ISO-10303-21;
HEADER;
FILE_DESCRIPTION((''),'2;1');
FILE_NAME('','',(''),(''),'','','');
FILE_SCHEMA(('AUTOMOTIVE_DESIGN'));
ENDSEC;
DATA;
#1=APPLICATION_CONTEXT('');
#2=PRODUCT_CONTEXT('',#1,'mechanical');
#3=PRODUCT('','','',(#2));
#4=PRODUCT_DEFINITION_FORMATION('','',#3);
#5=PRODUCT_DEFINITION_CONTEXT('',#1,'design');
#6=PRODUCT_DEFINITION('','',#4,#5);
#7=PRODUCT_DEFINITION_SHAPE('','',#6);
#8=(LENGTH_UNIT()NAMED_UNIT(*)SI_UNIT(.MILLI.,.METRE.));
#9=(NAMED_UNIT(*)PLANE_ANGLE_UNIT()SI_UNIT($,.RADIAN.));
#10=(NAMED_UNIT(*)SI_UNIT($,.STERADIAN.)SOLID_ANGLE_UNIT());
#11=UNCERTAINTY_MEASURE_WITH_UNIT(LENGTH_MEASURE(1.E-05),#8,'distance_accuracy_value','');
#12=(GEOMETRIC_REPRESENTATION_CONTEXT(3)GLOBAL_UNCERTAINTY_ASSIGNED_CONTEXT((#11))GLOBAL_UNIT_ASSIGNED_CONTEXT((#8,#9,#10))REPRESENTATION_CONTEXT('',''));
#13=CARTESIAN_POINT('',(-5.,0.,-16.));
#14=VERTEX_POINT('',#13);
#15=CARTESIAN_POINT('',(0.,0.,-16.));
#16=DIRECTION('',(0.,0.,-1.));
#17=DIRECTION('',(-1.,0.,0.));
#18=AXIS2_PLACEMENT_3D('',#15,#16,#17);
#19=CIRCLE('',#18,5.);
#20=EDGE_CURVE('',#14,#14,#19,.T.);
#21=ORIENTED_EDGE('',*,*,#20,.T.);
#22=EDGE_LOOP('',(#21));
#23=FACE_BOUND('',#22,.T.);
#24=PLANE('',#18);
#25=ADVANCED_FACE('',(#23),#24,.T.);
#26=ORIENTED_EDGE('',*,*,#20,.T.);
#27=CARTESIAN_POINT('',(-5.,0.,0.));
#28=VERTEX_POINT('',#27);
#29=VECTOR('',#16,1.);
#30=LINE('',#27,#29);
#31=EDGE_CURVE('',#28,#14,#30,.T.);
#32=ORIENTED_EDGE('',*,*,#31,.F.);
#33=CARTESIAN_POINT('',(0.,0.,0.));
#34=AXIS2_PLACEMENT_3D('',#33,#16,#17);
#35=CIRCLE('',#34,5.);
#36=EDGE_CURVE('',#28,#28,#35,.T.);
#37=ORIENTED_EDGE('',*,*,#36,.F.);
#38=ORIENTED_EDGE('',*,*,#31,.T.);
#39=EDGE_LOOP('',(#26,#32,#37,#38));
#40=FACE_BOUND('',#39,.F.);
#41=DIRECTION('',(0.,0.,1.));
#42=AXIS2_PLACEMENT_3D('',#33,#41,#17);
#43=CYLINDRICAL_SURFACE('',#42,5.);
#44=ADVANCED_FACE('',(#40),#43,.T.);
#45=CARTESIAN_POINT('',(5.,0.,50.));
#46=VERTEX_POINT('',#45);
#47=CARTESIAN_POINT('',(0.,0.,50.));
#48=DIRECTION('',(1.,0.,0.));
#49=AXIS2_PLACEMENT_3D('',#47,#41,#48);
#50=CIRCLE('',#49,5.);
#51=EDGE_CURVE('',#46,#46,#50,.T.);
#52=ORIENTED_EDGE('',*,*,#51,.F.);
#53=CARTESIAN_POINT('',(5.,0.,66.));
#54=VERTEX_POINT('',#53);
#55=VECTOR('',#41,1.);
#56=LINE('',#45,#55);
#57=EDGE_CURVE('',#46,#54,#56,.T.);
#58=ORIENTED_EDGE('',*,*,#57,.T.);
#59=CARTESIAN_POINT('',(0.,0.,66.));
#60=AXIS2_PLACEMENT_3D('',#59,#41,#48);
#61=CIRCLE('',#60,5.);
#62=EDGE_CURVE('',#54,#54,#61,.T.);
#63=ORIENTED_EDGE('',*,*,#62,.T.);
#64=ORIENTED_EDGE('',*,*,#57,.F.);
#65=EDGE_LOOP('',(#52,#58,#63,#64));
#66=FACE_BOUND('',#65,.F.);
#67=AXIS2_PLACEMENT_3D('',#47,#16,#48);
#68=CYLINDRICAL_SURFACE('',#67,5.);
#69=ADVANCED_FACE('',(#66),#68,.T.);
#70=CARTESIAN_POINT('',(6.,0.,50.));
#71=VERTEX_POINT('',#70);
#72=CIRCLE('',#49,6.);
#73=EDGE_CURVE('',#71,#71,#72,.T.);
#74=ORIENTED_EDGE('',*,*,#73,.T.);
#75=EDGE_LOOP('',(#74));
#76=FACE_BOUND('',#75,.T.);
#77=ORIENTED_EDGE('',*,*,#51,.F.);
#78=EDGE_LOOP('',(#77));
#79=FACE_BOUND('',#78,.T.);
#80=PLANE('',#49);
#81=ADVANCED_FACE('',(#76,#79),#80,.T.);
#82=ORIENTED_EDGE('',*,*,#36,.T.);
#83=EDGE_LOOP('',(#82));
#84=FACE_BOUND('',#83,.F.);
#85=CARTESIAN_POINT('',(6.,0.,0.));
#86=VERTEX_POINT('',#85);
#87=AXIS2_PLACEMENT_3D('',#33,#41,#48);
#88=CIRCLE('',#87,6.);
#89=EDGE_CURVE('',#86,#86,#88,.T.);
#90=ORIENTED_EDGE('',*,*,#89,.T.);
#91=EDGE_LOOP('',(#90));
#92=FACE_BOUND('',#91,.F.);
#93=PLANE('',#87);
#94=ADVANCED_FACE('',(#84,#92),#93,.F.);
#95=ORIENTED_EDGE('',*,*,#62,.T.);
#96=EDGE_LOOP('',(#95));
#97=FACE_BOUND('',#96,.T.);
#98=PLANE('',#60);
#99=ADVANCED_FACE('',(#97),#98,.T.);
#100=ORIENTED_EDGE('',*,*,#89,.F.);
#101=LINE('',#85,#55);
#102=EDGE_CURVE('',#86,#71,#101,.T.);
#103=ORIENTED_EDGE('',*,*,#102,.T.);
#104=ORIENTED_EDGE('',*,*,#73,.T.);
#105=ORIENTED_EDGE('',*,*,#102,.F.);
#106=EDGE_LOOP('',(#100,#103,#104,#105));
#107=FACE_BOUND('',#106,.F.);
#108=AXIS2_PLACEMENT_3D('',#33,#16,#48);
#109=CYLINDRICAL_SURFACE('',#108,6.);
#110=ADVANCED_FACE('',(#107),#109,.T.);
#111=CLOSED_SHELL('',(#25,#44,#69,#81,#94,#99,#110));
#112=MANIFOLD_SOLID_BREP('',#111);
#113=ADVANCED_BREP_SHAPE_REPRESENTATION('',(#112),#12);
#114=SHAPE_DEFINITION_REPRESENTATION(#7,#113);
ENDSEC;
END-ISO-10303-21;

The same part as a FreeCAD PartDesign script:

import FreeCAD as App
import Part
import Sketcher

doc = App.newDocument("Part")
body = doc.addObject("PartDesign::Body", "Body")

# Sketch on XY plane
sketch1 = body.newObject("Sketcher::SketchObject", "Sketch")
sketch1.AttachmentSupport = (doc.getObject("XY_Plane"), [""])
sketch1.MapMode = "FlatFace"
sketch1.addGeometry(Part.Circle(App.Vector(0, 0, 0), App.Vector(0, 0, 1), 6), False)
sketch1.addConstraint([
    Sketcher.Constraint("Coincident", 0, 3, -1, 1),
    Sketcher.Constraint("Diameter", 0, 12.0),
])
pad1 = body.newObject("PartDesign::Pad", "Pad")
pad1.Profile = sketch1
pad1.Length = 50

# Sketch on XY plane
sketch2 = body.newObject("Sketcher::SketchObject", "Sketch001")
sketch2.AttachmentSupport = (doc.getObject("XY_Plane"), [""])
sketch2.MapMode = "FlatFace"
sketch2.AttachmentOffset = App.Placement(App.Vector(0, 0, 50), App.Rotation())
sketch2.addGeometry(Part.Circle(App.Vector(0, 0, 0), App.Vector(0, 0, 1), 5), False)
sketch2.addConstraint([
    Sketcher.Constraint("Coincident", 0, 3, -1, 1),
    Sketcher.Constraint("Diameter", 0, 10.0),
])
pad2 = body.newObject("PartDesign::Pad", "Pad001")
pad2.Profile = sketch2
pad2.Length = 16

# Sketch on XY plane
sketch3 = body.newObject("Sketcher::SketchObject", "Sketch002")
sketch3.AttachmentSupport = (doc.getObject("XY_Plane"), [""])
sketch3.MapMode = "FlatFace"
sketch3.addGeometry(Part.Circle(App.Vector(0, 0, 0), App.Vector(0, 0, 1), 5), False)
sketch3.addConstraint([
    Sketcher.Constraint("Coincident", 0, 3, -1, 1),
    Sketcher.Constraint("Diameter", 0, 10.0),
])
pad3 = body.newObject("PartDesign::Pad", "Pad002")
pad3.Profile = sketch3
pad3.Length = 16
pad3.Reversed = True

doc.recompute()
